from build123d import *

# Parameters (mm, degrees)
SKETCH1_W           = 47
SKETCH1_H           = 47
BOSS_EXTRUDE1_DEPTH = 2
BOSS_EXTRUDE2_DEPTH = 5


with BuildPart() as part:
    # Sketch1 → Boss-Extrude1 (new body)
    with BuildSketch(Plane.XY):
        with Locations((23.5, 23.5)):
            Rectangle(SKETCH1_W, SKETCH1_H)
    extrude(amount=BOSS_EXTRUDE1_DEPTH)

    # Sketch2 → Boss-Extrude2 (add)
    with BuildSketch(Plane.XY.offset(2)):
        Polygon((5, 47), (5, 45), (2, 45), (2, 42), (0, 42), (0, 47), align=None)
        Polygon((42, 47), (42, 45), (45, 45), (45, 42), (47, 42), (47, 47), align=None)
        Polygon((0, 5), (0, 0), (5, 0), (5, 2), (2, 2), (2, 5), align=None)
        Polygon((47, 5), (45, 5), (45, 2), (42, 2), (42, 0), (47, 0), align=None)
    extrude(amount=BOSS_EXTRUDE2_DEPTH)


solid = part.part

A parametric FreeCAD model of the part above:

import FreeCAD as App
import Part
import Sketcher
from FreeCAD import Vector


def add_polygon(sketch, points):
    """Adds a closed chain of lines whose ends are joined by coincident constraints."""
    first, n = sketch.GeometryCount, len(points)
    for a, b in zip(points, points[1:] + points[:1]):
        sketch.addGeometry(Part.LineSegment(App.Vector(*a, 0), App.Vector(*b, 0)), False)
    for i in range(n):
        sketch.addConstraint(Sketcher.Constraint("Coincident", first + i, 2, first + (i + 1) % n, 1))

doc = App.newDocument("Part")
params = doc.addObject("Spreadsheet::Sheet", "Params")
for row, (alias, value) in enumerate([
    ("sketch1_width", "47 mm"),
    ("pad1_length", "2 mm"),
    ("sketch2_width", "5 mm"),
    ("sketch2_width2", "2 mm"),
    ("pad2_length", "5 mm"),
], start=1):
    params.set(f"A{row}", alias)
    params.set(f"B{row}", "=" + value)
    params.setAlias(f"B{row}", alias)

body = doc.addObject("PartDesign::Body", "Body")

sketch1 = doc.addObject("Sketcher::SketchObject", "Sketch")
body.addObject(sketch1)
sketch1.AttachmentSupport = (doc.XY_Plane, [""])
sketch1.MapMode = "FlatFace"
add_polygon(sketch1, [(0, 47), (0, 0), (47, 0), (47, 47)])
sketch1.addConstraint([
    Sketcher.Constraint("Vertical", 0),
    Sketcher.Constraint("Horizontal", 1),
    Sketcher.Constraint("Vertical", 2),
    Sketcher.Constraint("Horizontal", 3),
    Sketcher.Constraint("Coincident", 0, 2, -1, 1),
    Sketcher.Constraint("Equal", 3, 0),
    Sketcher.Constraint("DistanceX", 1, 1, 1, 2, 47.0),
])
sketch1.setExpression("Constraints[10]", "Params.sketch1_width")
pad1 = doc.addObject("PartDesign::Pad", "Pad")
body.addObject(pad1)
pad1.Profile = sketch1
pad1.setExpression("Length", "Params.pad1_length")

sketch2 = doc.addObject("Sketcher::SketchObject", "Sketch001")
body.addObject(sketch2)
sketch2.AttachmentSupport = (doc.XY_Plane, [""])
sketch2.MapMode = "FlatFace"
sketch2.AttachmentOffset = App.Placement(Vector(0, 0, 2), App.Rotation())
add_polygon(sketch2, [(5, 45), (5, 47), (0, 47), (0, 42), (2, 42), (2, 45)])
add_polygon(sketch2, [(42, 47), (42, 45), (45, 45), (45, 42), (47, 42), (47, 47)])
add_polygon(sketch2, [(0, 5), (0, 0), (5, 0), (5, 2), (2, 2), (2, 5)])
add_polygon(sketch2, [(47, 5), (45, 5), (45, 2), (42, 2), (42, 0), (47, 0)])
sketch2.addConstraint([
    Sketcher.Constraint("Vertical", 0),
    Sketcher.Constraint("Horizontal", 1),
    Sketcher.Constraint("Vertical", 2),
    Sketcher.Constraint("Horizontal", 3),
    Sketcher.Constraint("Vertical", 4),
    Sketcher.Constraint("Horizontal", 5),
    Sketcher.Constraint("Vertical", 6),
    Sketcher.Constraint("Horizontal", 7),
    Sketcher.Constraint("Vertical", 8),
    Sketcher.Constraint("Horizontal", 9),
    Sketcher.Constraint("Vertical", 10),
    Sketcher.Constraint("Horizontal", 11),
    Sketcher.Constraint("Vertical", 12),
    Sketcher.Constraint("Horizontal", 13),
    Sketcher.Constraint("Vertical", 14),
    Sketcher.Constraint("Horizontal", 15),
    Sketcher.Constraint("Vertical", 16),
    Sketcher.Constraint("Horizontal", 17),
    Sketcher.Constraint("Horizontal", 18),
    Sketcher.Constraint("Vertical", 19),
    Sketcher.Constraint("Horizontal", 20),
    Sketcher.Constraint("Vertical", 21),
    Sketcher.Constraint("Horizontal", 22),
    Sketcher.Constraint("Vertical", 23),
    Sketcher.Constraint("Coincident", 12, 2, -1, 1),
    Sketcher.Constraint("PointOnObject", 1, 2, -2),
    Sketcher.Constraint("PointOnObject", 21, 2, -1),
    Sketcher.Constraint("Horizontal", 5, 2, 6, 2),
    Sketcher.Constraint("Horizontal", 3, 2, 8, 2),
    Sketcher.Constraint("Horizontal", 1, 2, 10, 2),
    Sketcher.Constraint("Horizontal", 17, 2, 18, 2),
    Sketcher.Constraint("Horizontal", 15, 2, 19, 2),
    Sketcher.Constraint("Vertical", 5, 2, 13, 2),
    Sketcher.Constraint("Vertical", 4, 2, 15, 2),
    Sketcher.Constraint("Vertical", 8, 2, 18, 2),
    Sketcher.Constraint("Vertical", 11, 2, 20, 2),
    Sketcher.Constraint("Vertical", 10, 2, 22, 2),
    Sketcher.Constraint("Equal", 5, 7),
    Sketcher.Constraint("Equal", 3, 9),
    Sketcher.Constraint("Equal", 18, 0),
    Sketcher.Constraint("Equal", 22, 2),
    Sketcher.Constraint("Equal", 10, 12),
    Sketcher.Constraint("Equal", 6, 14),
    Sketcher.Constraint("DistanceX", 1, 2, 1, 1, 5.0),
    Sketcher.Constraint("DistanceX", 3, 1, 3, 2, 2.0),
    Sketcher.Constraint("DistanceY", -1, 1, 0, 2, 47.0),
    Sketcher.Constraint("DistanceX", -1, 1, 6, 2, 42.0),
])
sketch2.setExpression("Constraints[67]", "Params.sketch2_width")
sketch2.setExpression("Constraints[68]", "Params.sketch2_width2")
pad2 = doc.addObject("PartDesign::Pad", "Pad001")
body.addObject(pad2)
pad2.Profile = sketch2
pad2.setExpression("Length", "Params.pad2_length")

doc.recompute()
